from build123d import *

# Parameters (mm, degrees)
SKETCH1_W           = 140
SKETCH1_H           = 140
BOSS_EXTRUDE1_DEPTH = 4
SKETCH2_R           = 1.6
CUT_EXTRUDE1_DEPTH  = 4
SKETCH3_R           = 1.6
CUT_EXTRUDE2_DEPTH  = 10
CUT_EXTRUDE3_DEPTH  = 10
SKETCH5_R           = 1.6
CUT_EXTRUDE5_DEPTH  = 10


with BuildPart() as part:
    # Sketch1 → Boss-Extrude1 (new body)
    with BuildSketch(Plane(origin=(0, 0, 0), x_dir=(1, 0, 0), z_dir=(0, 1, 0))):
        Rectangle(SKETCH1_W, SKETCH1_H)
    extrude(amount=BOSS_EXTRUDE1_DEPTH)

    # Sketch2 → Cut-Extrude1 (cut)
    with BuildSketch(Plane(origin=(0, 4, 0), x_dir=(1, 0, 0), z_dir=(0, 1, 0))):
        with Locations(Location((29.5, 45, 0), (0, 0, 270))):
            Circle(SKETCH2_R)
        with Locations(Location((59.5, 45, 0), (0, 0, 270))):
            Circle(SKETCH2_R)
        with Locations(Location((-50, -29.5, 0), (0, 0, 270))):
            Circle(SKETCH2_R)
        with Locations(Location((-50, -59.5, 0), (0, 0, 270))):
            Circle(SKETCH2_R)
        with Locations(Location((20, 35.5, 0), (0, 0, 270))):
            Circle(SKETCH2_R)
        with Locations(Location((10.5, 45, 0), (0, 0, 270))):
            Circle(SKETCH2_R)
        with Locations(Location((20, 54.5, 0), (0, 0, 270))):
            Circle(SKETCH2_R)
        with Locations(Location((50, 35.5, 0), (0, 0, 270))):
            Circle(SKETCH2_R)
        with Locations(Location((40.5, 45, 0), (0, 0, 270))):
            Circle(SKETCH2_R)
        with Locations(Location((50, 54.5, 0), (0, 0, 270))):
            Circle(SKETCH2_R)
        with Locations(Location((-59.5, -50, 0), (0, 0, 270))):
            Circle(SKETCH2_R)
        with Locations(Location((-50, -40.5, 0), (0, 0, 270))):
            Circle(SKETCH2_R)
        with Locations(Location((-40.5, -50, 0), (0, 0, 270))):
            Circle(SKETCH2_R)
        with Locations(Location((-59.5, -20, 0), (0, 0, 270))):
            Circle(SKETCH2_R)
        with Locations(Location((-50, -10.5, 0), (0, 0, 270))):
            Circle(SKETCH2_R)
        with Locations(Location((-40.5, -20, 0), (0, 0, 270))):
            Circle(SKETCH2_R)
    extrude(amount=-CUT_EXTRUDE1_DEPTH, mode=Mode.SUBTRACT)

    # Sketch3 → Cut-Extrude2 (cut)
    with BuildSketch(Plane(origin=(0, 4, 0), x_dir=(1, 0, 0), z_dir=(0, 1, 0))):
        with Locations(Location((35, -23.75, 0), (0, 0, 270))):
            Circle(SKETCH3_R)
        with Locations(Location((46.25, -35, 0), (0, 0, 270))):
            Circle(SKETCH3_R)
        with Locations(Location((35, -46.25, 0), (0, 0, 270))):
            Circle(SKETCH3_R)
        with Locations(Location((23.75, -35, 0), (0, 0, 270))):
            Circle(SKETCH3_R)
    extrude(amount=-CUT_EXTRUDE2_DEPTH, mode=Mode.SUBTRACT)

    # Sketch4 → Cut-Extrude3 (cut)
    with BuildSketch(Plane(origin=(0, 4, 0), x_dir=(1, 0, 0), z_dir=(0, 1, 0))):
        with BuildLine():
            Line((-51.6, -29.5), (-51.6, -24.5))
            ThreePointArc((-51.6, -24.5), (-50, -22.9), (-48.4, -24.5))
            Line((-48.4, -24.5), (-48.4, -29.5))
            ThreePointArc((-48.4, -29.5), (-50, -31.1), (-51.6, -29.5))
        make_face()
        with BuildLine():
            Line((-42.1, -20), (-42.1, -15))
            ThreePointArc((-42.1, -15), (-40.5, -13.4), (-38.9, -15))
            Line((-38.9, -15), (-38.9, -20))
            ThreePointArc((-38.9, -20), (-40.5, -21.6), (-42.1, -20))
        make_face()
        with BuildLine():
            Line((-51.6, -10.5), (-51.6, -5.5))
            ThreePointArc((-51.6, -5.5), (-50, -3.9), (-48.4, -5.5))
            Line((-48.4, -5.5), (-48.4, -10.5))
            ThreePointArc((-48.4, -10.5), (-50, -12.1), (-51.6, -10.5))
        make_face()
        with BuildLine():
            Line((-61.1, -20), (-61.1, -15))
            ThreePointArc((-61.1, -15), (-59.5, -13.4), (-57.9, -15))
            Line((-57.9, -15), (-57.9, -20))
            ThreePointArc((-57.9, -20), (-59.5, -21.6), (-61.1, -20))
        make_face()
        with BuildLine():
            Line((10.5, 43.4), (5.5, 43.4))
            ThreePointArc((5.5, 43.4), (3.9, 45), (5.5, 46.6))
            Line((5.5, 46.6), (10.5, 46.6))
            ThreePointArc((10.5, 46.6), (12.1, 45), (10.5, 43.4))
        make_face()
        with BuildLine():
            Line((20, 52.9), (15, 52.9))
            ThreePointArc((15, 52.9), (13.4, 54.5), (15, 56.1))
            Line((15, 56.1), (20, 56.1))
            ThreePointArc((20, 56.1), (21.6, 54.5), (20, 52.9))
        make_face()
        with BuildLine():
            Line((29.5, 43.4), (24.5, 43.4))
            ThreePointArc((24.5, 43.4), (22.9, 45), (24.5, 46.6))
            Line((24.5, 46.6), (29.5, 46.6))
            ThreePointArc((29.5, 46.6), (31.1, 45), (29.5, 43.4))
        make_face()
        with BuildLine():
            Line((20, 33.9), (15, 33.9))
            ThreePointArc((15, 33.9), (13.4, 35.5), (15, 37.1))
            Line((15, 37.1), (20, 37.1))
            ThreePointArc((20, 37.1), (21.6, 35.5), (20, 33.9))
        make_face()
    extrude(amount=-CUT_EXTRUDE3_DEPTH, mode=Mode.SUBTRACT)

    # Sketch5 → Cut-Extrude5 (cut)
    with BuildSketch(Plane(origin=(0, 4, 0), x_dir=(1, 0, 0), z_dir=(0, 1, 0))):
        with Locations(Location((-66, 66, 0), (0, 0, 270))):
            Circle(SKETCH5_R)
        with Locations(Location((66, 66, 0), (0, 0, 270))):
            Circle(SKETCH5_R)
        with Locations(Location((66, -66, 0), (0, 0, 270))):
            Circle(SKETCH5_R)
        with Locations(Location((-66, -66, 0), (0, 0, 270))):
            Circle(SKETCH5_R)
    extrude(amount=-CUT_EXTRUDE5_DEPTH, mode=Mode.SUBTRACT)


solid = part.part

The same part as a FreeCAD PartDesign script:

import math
import FreeCAD as App
import Part
import Sketcher
from FreeCAD import Vector
Q = App.Units.Quantity

doc = App.newDocument("Part")
body = doc.addObject("PartDesign::Body", "Body")

sketch1 = doc.addObject("Sketcher::SketchObject", "Sketch")
body.addObject(sketch1)
sketch1.AttachmentSupport = (doc.XZ_Plane, [""])
sketch1.MapMode = "FlatFace"
sketch1.addGeometry([
    Part.LineSegment(Vector(-70, -70, 0), Vector(-70, 70, 0)),
    Part.LineSegment(Vector(-70, 70, 0), Vector(70, 70, 0)),
    Part.LineSegment(Vector(70, 70, 0), Vector(70, -70, 0)),
    Part.LineSegment(Vector(70, -70, 0), Vector(-70, -70, 0)),
], False)
sketch1.addConstraint([
    Sketcher.Constraint("Coincident", 0, 2, 1, 1),
    Sketcher.Constraint("Coincident", 1, 2, 2, 1),
    Sketcher.Constraint("Coincident", 2, 2, 3, 1),
    Sketcher.Constraint("Coincident", 3, 2, 0, 1),
    Sketcher.Constraint("Vertical", 0),
    Sketcher.Constraint("Horizontal", 1),
    Sketcher.Constraint("Vertical", 2),
    Sketcher.Constraint("Horizontal", 3),
    Sketcher.Constraint("Symmetric", 0, 2, 2, 2, -1, 1),
    Sketcher.Constraint("Equal", 3, 0),
    Sketcher.Constraint("DistanceX", 1, 1, 1, 2, Q("140 mm")),
])
pad1 = doc.addObject("PartDesign::Pad", "Pad")
body.addObject(pad1)
pad1.Profile = sketch1
pad1.Length = 4
pad1.Reversed = True

sketch2 = doc.addObject("Sketcher::SketchObject", "Sketch001")
body.addObject(sketch2)
sketch2.AttachmentSupport = (doc.XZ_Plane, [""])
sketch2.MapMode = "FlatFace"
sketch2.AttachmentOffset = App.Placement(Vector(0, 0, -4), App.Rotation())
sketch2.addGeometry([
    Part.Circle(Vector(29.5, -45, 0), Vector(0, 0, 1), 1.6),
    Part.Circle(Vector(59.5, -45, 0), Vector(0, 0, 1), 1.6),
    Part.Circle(Vector(-50, 29.5, 0), Vector(0, 0, 1), 1.6),
    Part.Circle(Vector(-50, 59.5, 0), Vector(0, 0, 1), 1.6),
    Part.Circle(Vector(20, -35.5, 0), Vector(0, 0, 1), 1.6),
    Part.Circle(Vector(10.5, -45, 0), Vector(0, 0, 1), 1.6),
    Part.Circle(Vector(20, -54.5, 0), Vector(0, 0, 1), 1.6),
    Part.Circle(Vector(50, -35.5, 0), Vector(0, 0, 1), 1.6),
    Part.Circle(Vector(40.5, -45, 0), Vector(0, 0, 1), 1.6),
    Part.Circle(Vector(50, -54.5, 0), Vector(0, 0, 1), 1.6),
    Part.Circle(Vector(-59.5, 50, 0), Vector(0, 0, 1), 1.6),
    Part.Circle(Vector(-50, 40.5, 0), Vector(0, 0, 1), 1.6),
    Part.Circle(Vector(-40.5, 50, 0), Vector(0, 0, 1), 1.6),
    Part.Circle(Vector(-59.5, 20, 0), Vector(0, 0, 1), 1.6),
    Part.Circle(Vector(-50, 10.5, 0), Vector(0, 0, 1), 1.6),
    Part.Circle(Vector(-40.5, 20, 0), Vector(0, 0, 1), 1.6),
], False)
sketch2.addConstraint([
    Sketcher.Constraint("Equal", 0, 1),
    Sketcher.Constraint("Equal", 1, 2),
    Sketcher.Constraint("Equal", 2, 3),
    Sketcher.Constraint("Equal", 3, 4),
    Sketcher.Constraint("Equal", 4, 5),
    Sketcher.Constraint("Equal", 5, 6),
    Sketcher.Constraint("Equal", 6, 7),
    Sketcher.Constraint("Equal", 7, 8),
    Sketcher.Constraint("Equal", 8, 9),
    Sketcher.Constraint("Equal", 9, 10),
    Sketcher.Constraint("Equal", 10, 11),
    Sketcher.Constraint("Equal", 11, 12),
    Sketcher.Constraint("Equal", 12, 13),
    Sketcher.Constraint("Equal", 13, 14),
    Sketcher.Constraint("Equal", 14, 15),
    Sketcher.Constraint("Horizontal", 0, 3, 1, 3),
    Sketcher.Constraint("Horizontal", 1, 3, 5, 3),
    Sketcher.Constraint("Horizontal", 4, 3, 7, 3),
    Sketcher.Constraint("Horizontal", 5, 3, 8, 3),
    Sketcher.Constraint("Horizontal", 6, 3, 9, 3),
    Sketcher.Constraint("Horizontal", 10, 3, 12, 3),
    Sketcher.Constraint("Horizontal", 13, 3, 15, 3),
    Sketcher.Constraint("Vertical", 2, 3, 3, 3),
    Sketcher.Constraint("Vertical", 4, 3, 6, 3),
    Sketcher.Constraint("Vertical", 7, 3, 9, 3),
    Sketcher.Constraint("Vertical", 3, 3, 11, 3),
    Sketcher.Constraint("Vertical", 10, 3, 13, 3),
    Sketcher.Constraint("Vertical", 11, 3, 14, 3),
    Sketcher.Constraint("Vertical", 12, 3, 15, 3),
    Sketcher.Constraint("Diameter", 0, Q("3.2 mm")),
    Sketcher.Constraint("DistanceY", 0, 3, -1, 1, Q("45 mm")),
    Sketcher.Constraint("DistanceX", 2, 3, -1, 1, Q("50 mm")),
    Sketcher.Constraint("DistanceX", -1, 1, 4, 3, Q("20 mm")),
    Sketcher.Constraint("DistanceX", -1, 1, 7, 3, Q("50 mm")),
    Sketcher.Constraint("DistanceY", -1, 1, 10, 3, Q("50 mm")),
    Sketcher.Constraint("DistanceY", -1, 1, 13, 3, Q("20 mm")),
    Sketcher.Constraint("DistanceX", 0, 3, 1, 3, Q("30 mm")),
    Sketcher.Constraint("DistanceY", 2, 3, 3, 3, Q("30 mm")),
    Sketcher.Constraint("DistanceY", 4, 3, 2, 3, Q("65 mm")),
    Sketcher.Constraint("DistanceX", 5, 3, 0, 3, Q("19 mm")),
    Sketcher.Constraint("DistanceY", 6, 3, 4, 3, Q("19 mm")),
    Sketcher.Constraint("DistanceX", 0, 3, 8, 3, Q("11 mm")),
    Sketcher.Constraint("DistanceX", 10, 3, 5, 3, Q("70 mm")),
    Sketcher.Constraint("DistanceY", 2, 3, 11, 3, Q("11 mm")),
    Sketcher.Constraint("DistanceX", 10, 3, 12, 3, Q("19 mm")),
    Sketcher.Constraint("DistanceY", 14, 3, 2, 3, Q("19 mm")),
    Sketcher.Constraint("DistanceX", -1, 1, 0, 3, Q("29.5 mm")),
    Sketcher.Constraint("DistanceY", -1, 1, 2, 3, Q("29.5 mm")),
])
pocket1 = doc.addObject("PartDesign::Pocket", "Pocket")
body.addObject(pocket1)
pocket1.Profile = sketch2
pocket1.Length = 4
pocket1.Reversed = True

sketch3 = doc.addObject("Sketcher::SketchObject", "Sketch002")
body.addObject(sketch3)
sketch3.AttachmentSupport = (doc.XZ_Plane, [""])
sketch3.MapMode = "FlatFace"
sketch3.AttachmentOffset = App.Placement(Vector(0, 0, -4), App.Rotation())
sketch3.addGeometry([
    Part.Circle(Vector(35, 23.8, 0), Vector(0, 0, 1), 1.6),
    Part.Circle(Vector(46.2, 35, 0), Vector(0, 0, 1), 1.6),
    Part.Circle(Vector(35, 46.2, 0), Vector(0, 0, 1), 1.6),
    Part.Circle(Vector(23.8, 35, 0), Vector(0, 0, 1), 1.6),
], False)
sketch3.addConstraint([
    Sketcher.Constraint("Equal", 0, 1),
    Sketcher.Constraint("Equal", 1, 2),
    Sketcher.Constraint("Equal", 2, 3),
    Sketcher.Constraint("Horizontal", 1, 3, 3, 3),
    Sketcher.Constraint("Vertical", 0, 3, 2, 3),
    Sketcher.Constraint("Diameter", 0, Q("3.2 mm")),
    Sketcher.Constraint("DistanceX", -1, 1, 0, 3, Q("35 mm")),
    Sketcher.Constraint("DistanceY", -1, 1, 1, 3, Q("35 mm")),
    Sketcher.Constraint("DistanceY", 0, 3, 2, 3, Q("22.5 mm")),
    Sketcher.Constraint("DistanceX", 3, 3, 1, 3, Q("22.5 mm")),
    Sketcher.Constraint("DistanceY", -1, 1, 0, 3, Q("23.75 mm")),
    Sketcher.Constraint("DistanceX", -1, 1, 1, 3, Q("46.25 mm")),
])
pocket2 = doc.addObject("PartDesign::Pocket", "Pocket001")
body.addObject(pocket2)
pocket2.Profile = sketch3
pocket2.Length = 10
pocket2.Reversed = True

sketch4 = doc.addObject("Sketcher::SketchObject", "Sketch003")
body.addObject(sketch4)
sketch4.AttachmentSupport = (doc.XZ_Plane, [""])
sketch4.MapMode = "FlatFace"
sketch4.AttachmentOffset = App.Placement(Vector(0, 0, -4), App.Rotation())
sketch4.addGeometry([
    Part.LineSegment(Vector(-51.6, 24.5, 0), Vector(-51.6, 29.5, 0)),
    Part.ArcOfCircle(Part.Circle(Vector(-50, 29.5, 0), Vector(0, 0, 1), 1.6), math.radians(0), math.radians(180)),
    Part.LineSegment(Vector(-48.4, 29.5, 0), Vector(-48.4, 24.5, 0)),
    Part.ArcOfCircle(Part.Circle(Vector(-50, 24.5, 0), Vector(0, 0, 1), 1.6), math.radians(180), math.radians(360)),
    Part.LineSegment(Vector(-42.1, 15, 0), Vector(-42.1, 20, 0)),
    Part.ArcOfCircle(Part.Circle(Vector(-40.5, 20, 0), Vector(0, 0, 1), 1.6), math.radians(0), math.radians(180)),
    Part.LineSegment(Vector(-38.9, 20, 0), Vector(-38.9, 15, 0)),
    Part.ArcOfCircle(Part.Circle(Vector(-40.5, 15, 0), Vector(0, 0, 1), 1.6), math.radians(180), math.radians(360)),
    Part.LineSegment(Vector(-51.6, 5.5, 0), Vector(-51.6, 10.5, 0)),
    Part.ArcOfCircle(Part.Circle(Vector(-50, 10.5, 0), Vector(0, 0, 1), 1.6), math.radians(0), math.radians(180)),
    Part.LineSegment(Vector(-48.4, 10.5, 0), Vector(-48.4, 5.5, 0)),
    Part.ArcOfCircle(Part.Circle(Vector(-50, 5.5, 0), Vector(0, 0, 1), 1.6), math.radians(180), math.radians(360)),
    Part.LineSegment(Vector(-61.1, 15, 0), Vector(-61.1, 20, 0)),
    Part.ArcOfCircle(Part.Circle(Vector(-59.5, 20, 0), Vector(0, 0, 1), 1.6), math.radians(0), math.radians(180)),
    Part.LineSegment(Vector(-57.9, 20, 0), Vector(-57.9, 15, 0)),
    Part.ArcOfCircle(Part.Circle(Vector(-59.5, 15, 0), Vector(0, 0, 1), 1.6), math.radians(180), math.radians(360)),
    Part.LineSegment(Vector(5.5, -43.4, 0), Vector(10.5, -43.4, 0)),
    Part.ArcOfCircle(Part.Circle(Vector(10.5, -45, 0), Vector(0, 0, 1), 1.6), math.radians(-90), math.radians(90)),
    Part.LineSegment(Vector(10.5, -46.6, 0), Vector(5.5, -46.6, 0)),
    Part.ArcOfCircle(Part.Circle(Vector(5.5, -45, 0), Vector(0, 0, 1), 1.6), math.radians(90), math.radians(270)),
    Part.LineSegment(Vector(15, -52.9, 0), Vector(20, -52.9, 0)),
    Part.ArcOfCircle(Part.Circle(Vector(20, -54.5, 0), Vector(0, 0, 1), 1.6), math.radians(-90), math.radians(90)),
    Part.LineSegment(Vector(20, -56.1, 0), Vector(15, -56.1, 0)),
    Part.ArcOfCircle(Part.Circle(Vector(15, -54.5, 0), Vector(0, 0, 1), 1.6), math.radians(90), math.radians(270)),
    Part.LineSegment(Vector(24.5, -43.4, 0), Vector(29.5, -43.4, 0)),
    Part.ArcOfCircle(Part.Circle(Vector(29.5, -45, 0), Vector(0, 0, 1), 1.6), math.radians(-90), math.radians(90)),
    Part.LineSegment(Vector(29.5, -46.6, 0), Vector(24.5, -46.6, 0)),
    Part.ArcOfCircle(Part.Circle(Vector(24.5, -45, 0), Vector(0, 0, 1), 1.6), math.radians(90), math.radians(270)),
    Part.LineSegment(Vector(15, -33.9, 0), Vector(20, -33.9, 0)),
    Part.ArcOfCircle(Part.Circle(Vector(20, -35.5, 0), Vector(0, 0, 1), 1.6), math.radians(-90), math.radians(90)),
    Part.LineSegment(Vector(20, -37.1, 0), Vector(15, -37.1, 0)),
    Part.ArcOfCircle(Part.Circle(Vector(15, -35.5, 0), Vector(0, 0, 1), 1.6), math.radians(90), math.radians(270)),
], False)
sketch4.addConstraint([
    Sketcher.Constraint("Tangent", 0, 2, 1, 2),
    Sketcher.Constraint("Tangent", 1, 1, 2, 1),
    Sketcher.Constraint("Tangent", 2, 2, 3, 2),
    Sketcher.Constraint("Tangent", 3, 1, 0, 1),
    Sketcher.Constraint("Tangent", 4, 2, 5, 2),
    Sketcher.Constraint("Tangent", 5, 1, 6, 1),
    Sketcher.Constraint("Tangent", 6, 2, 7, 2),
    Sketcher.Constraint("Tangent", 7, 1, 4, 1),
    Sketcher.Constraint("Tangent", 8, 2, 9, 2),
    Sketcher.Constraint("Tangent", 9, 1, 10, 1),
    Sketcher.Constraint("Tangent", 10, 2, 11, 2),
    Sketcher.Constraint("Tangent", 11, 1, 8, 1),
    Sketcher.Constraint("Tangent", 12, 2, 13, 2),
    Sketcher.Constraint("Tangent", 13, 1, 14, 1),
    Sketcher.Constraint("Tangent", 14, 2, 15, 2),
    Sketcher.Constraint("Tangent", 15, 1, 12, 1),
    Sketcher.Constraint("Tangent", 16, 2, 17, 2),
    Sketcher.Constraint("Tangent", 17, 1, 18, 1),
    Sketcher.Constraint("Tangent", 18, 2, 19, 2),
    Sketcher.Constraint("Tangent", 19, 1, 16, 1),
    Sketcher.Constraint("Tangent", 20, 2, 21, 2),
    Sketcher.Constraint("Tangent", 21, 1, 22, 1),
    Sketcher.Constraint("Tangent", 22, 2, 23, 2),
    Sketcher.Constraint("Tangent", 23, 1, 20, 1),
    Sketcher.Constraint("Tangent", 24, 2, 25, 2),
    Sketcher.Constraint("Tangent", 25, 1, 26, 1),
    Sketcher.Constraint("Tangent", 26, 2, 27, 2),
    Sketcher.Constraint("Tangent", 27, 1, 24, 1),
    Sketcher.Constraint("Tangent", 28, 2, 29, 2),
    Sketcher.Constraint("Tangent", 29, 1, 30, 1),
    Sketcher.Constraint("Tangent", 30, 2, 31, 2),
    Sketcher.Constraint("Tangent", 31, 1, 28, 1),
    Sketcher.Constraint("Vertical", 0),
    Sketcher.Constraint("Vertical", 2),
    Sketcher.Constraint("Vertical", 4),
    Sketcher.Constraint("Vertical", 6),
    Sketcher.Constraint("Vertical", 8),
    Sketcher.Constraint("Vertical", 10),
    Sketcher.Constraint("Vertical", 12),
    Sketcher.Constraint("Vertical", 14),
    Sketcher.Constraint("Horizontal", 16),
    Sketcher.Constraint("Horizontal", 18),
    Sketcher.Constraint("Horizontal", 20),
    Sketcher.Constraint("Horizontal", 22),
    Sketcher.Constraint("Horizontal", 24),
    Sketcher.Constraint("Horizontal", 26),
    Sketcher.Constraint("Horizontal", 28),
    Sketcher.Constraint("Horizontal", 30),
    Sketcher.Constraint("Equal", 3, 5),
    Sketcher.Constraint("Equal", 7, 9),
    Sketcher.Constraint("Equal", 11, 13),
    Sketcher.Constraint("Equal", 15, 17),
    Sketcher.Constraint("Equal", 19, 21),
    Sketcher.Constraint("Equal", 23, 25),
    Sketcher.Constraint("Equal", 27, 29),
    Sketcher.Constraint("Horizontal", 5, 3, 13, 3),
    Sketcher.Constraint("Horizontal", 7, 3, 15, 3),
    Sketcher.Constraint("Horizontal", 19, 3, 25, 3),
    Sketcher.Constraint("Vertical", 3, 3, 9, 3),
    Sketcher.Constraint("Vertical", 21, 3, 29, 3),
    Sketcher.Constraint("Vertical", 23, 3, 31, 3),
    Sketcher.Constraint("Equal", 18, 20),
    Sketcher.Constraint("Equal", 22, 24),
    Sketcher.Constraint("Equal", 30, 0),
    Sketcher.Constraint("Equal", 2, 4),
    Sketcher.Constraint("Equal", 6, 8),
    Sketcher.Constraint("Radius", 1, Q("1.6 mm")),
    Sketcher.Constraint("DistanceX", 16, 1, 16, 2, Q("5 mm")),
    Sketcher.Constraint("DistanceX", 1, 3, -1, 1, Q("50 mm")),
    Sketcher.Constraint("DistanceY", -1, 1, 5, 3, Q("20 mm")),
    Sketcher.Constraint("DistanceY", 17, 3, -1, 1, Q("45 mm")),
    Sketcher.Constraint("DistanceX", -1, 1, 21, 3, Q("20 mm")),
    Sketcher.Constraint("DistanceY", 9, 3, 3, 3, Q("14 mm")),
    Sketcher.Constraint("DistanceX", 13, 3, 5, 3, Q("19 mm")),
    Sketcher.Constraint("DistanceX", 7, 3, 17, 3, Q("51 mm")),
    Sketcher.Constraint("DistanceY", 21, 3, 11, 3, Q("60 mm")),
    Sketcher.Constraint("DistanceX", 17, 3, 25, 3, Q("19 mm")),
    Sketcher.Constraint("DistanceY", 21, 3, 29, 3, Q("19 mm")),
    Sketcher.Constraint("DistanceY", -1, 1, 1, 3, Q("29.5 mm")),
    Sketcher.Constraint("DistanceX", 5, 3, -1, 1, Q("40.5 mm")),
])
pocket3 = doc.addObject("PartDesign::Pocket", "Pocket002")
body.addObject(pocket3)
pocket3.Profile = sketch4
pocket3.Length = 10
pocket3.Reversed = True

sketch5 = doc.addObject("Sketcher::SketchObject", "Sketch004")
body.addObject(sketch5)
sketch5.AttachmentSupport = (doc.XZ_Plane, [""])
sketch5.MapMode = "FlatFace"
sketch5.AttachmentOffset = App.Placement(Vector(0, 0, -4), App.Rotation())
sketch5.addGeometry([
    Part.Circle(Vector(-66, -66, 0), Vector(0, 0, 1), 1.6),
    Part.Circle(Vector(66, -66, 0), Vector(0, 0, 1), 1.6),
    Part.Circle(Vector(66, 66, 0), Vector(0, 0, 1), 1.6),
    Part.Circle(Vector(-66, 66, 0), Vector(0, 0, 1), 1.6),
], False)
sketch5.addConstraint([
    Sketcher.Constraint("Equal", 0, 1),
    Sketcher.Constraint("Equal", 1, 2),
    Sketcher.Constraint("Equal", 2, 3),
    Sketcher.Constraint("Symmetric", 0, 3, 2, 3, -1, 1),
    Sketcher.Constraint("Symmetric", 1, 3, 3, 3, -1, 1),
    Sketcher.Constraint("Symmetric", 0, 3, 1, 3, -2),
    Sketcher.Constraint("Diameter", 0, Q("3.2 mm")),
    Sketcher.Constraint("DistanceX", 0, 3, -1, 1, Q("66 mm")),
    Sketcher.Constraint("DistanceY", 0, 3, -1, 1, Q("66 mm")),
])
pocket4 = doc.addObject("PartDesign::Pocket", "Pocket003")
body.addObject(pocket4)
pocket4.Profile = sketch5
pocket4.Length = 10
pocket4.Reversed = True

doc.recompute()
